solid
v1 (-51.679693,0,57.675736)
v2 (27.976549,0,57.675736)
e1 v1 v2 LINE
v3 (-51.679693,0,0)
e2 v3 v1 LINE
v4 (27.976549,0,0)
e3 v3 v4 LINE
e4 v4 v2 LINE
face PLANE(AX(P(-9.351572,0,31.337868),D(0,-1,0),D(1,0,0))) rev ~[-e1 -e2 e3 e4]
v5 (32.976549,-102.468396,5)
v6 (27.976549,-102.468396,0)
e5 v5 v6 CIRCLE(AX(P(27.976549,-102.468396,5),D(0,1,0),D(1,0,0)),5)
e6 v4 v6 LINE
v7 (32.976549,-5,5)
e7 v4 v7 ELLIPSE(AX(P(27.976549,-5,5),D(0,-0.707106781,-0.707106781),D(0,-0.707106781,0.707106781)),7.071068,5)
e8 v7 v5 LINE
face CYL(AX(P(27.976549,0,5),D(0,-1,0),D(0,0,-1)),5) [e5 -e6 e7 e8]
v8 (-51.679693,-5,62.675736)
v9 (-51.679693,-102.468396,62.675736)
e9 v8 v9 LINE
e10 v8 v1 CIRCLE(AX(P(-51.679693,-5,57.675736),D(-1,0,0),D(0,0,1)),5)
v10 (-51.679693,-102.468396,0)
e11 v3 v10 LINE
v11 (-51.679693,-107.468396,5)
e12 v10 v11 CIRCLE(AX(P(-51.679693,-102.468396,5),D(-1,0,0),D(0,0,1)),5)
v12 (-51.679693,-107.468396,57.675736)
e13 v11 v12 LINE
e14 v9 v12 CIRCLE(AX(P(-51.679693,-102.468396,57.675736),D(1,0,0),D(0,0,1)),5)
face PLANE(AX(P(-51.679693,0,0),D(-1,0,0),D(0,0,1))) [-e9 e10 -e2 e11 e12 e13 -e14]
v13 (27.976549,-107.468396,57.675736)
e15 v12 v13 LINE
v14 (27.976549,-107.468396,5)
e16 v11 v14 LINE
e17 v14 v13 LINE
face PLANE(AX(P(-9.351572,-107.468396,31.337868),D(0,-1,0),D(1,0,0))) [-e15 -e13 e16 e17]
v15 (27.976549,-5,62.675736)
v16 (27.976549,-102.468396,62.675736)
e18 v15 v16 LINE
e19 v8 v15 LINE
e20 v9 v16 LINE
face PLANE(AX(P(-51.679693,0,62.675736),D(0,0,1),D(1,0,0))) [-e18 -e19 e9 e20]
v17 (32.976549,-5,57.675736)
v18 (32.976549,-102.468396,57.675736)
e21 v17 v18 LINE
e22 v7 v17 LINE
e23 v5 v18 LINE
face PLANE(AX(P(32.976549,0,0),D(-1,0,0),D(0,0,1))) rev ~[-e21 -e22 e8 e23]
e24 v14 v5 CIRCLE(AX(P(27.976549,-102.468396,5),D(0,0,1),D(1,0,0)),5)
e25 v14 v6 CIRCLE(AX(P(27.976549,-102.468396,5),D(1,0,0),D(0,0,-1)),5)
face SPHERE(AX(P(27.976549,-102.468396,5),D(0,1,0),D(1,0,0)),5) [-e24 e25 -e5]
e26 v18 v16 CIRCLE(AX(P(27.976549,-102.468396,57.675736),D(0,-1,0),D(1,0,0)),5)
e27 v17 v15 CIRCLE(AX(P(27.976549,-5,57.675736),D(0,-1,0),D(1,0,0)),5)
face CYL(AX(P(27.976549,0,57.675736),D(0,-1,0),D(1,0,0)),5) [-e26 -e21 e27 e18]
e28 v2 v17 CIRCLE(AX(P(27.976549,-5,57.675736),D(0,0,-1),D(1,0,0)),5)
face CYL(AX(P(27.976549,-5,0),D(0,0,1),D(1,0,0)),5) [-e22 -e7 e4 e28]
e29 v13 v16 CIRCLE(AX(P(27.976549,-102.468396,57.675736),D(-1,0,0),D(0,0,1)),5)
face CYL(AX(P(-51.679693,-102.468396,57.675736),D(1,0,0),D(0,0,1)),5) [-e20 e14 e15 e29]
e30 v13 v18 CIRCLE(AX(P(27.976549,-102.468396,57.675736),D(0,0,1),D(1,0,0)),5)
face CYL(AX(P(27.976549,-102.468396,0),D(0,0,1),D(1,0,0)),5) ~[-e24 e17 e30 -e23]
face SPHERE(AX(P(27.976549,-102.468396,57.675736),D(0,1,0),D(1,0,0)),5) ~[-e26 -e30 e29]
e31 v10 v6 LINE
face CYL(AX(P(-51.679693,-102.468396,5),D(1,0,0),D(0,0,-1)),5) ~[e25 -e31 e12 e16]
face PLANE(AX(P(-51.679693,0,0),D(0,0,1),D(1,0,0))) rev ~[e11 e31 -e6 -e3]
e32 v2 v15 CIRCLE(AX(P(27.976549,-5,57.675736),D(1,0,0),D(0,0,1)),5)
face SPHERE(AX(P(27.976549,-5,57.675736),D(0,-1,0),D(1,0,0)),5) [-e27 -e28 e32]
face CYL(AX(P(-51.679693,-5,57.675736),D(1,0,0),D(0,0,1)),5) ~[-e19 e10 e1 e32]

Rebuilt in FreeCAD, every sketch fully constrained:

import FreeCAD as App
import Part
import Sketcher
from FreeCAD import Vector
Q = App.Units.Quantity


def edges_at(feature, points):
    """Names of the edges that pass closest to the given points."""
    edges = feature.Shape.Edges
    near = lambda p: min(range(len(edges)), key=lambda i: edges[i].distToShape(Part.Vertex(*p))[0])
    return sorted({f"Edge{near(p) + 1}" for p in points})


def add_polygon(sketch, points):
    """Adds a closed chain of lines whose ends are joined by coincident constraints."""
    first, n = sketch.GeometryCount, len(points)
    for a, b in zip(points, points[1:] + points[:1]):
        sketch.addGeometry(Part.LineSegment(App.Vector(*a, 0), App.Vector(*b, 0)), False)
    for i in range(n):
        sketch.addConstraint(Sketcher.Constraint("Coincident", first + i, 2, first + (i + 1) % n, 1))

doc = App.newDocument("Part")
params = doc.addObject("Spreadsheet::Sheet", "Params")
for row, (alias, value) in enumerate([
    ("pad1_length", "107.468396 mm"),
    ("fillet_radius", "5 mm"),
], start=1):
    params.set(f"A{row}", alias)
    params.set(f"B{row}", "=" + value)
    params.setAlias(f"B{row}", alias)

body = doc.addObject("PartDesign::Body", "Body")

sketch1 = body.newObject("Sketcher::SketchObject", "Sketch")
sketch1.AttachmentSupport = (doc.getObject("XZ_Plane"), [""])
sketch1.MapMode = "FlatFace"
add_polygon(sketch1, [(-52, 63), (-52, 0), (33, 0), (33, 63)])
sketch1.addConstraint([
    Sketcher.Constraint("Vertical", 0),
    Sketcher.Constraint("Horizontal", 1),
    Sketcher.Constraint("Vertical", 2),
    Sketcher.Constraint("Horizontal", 3),
    Sketcher.Constraint("PointOnObject", 0, 2, -1),
    Sketcher.Constraint("DistanceX", 1, 1, 1, 2, Q("84.656242 mm")),
    Sketcher.Constraint("DistanceY", 0, 2, 0, 1, Q("62.675737 mm")),
    Sketcher.Constraint("DistanceX", -1, 1, 1, 2, Q("32.976549 mm")),
])
pad1 = body.newObject("PartDesign::Pad", "Pad")
pad1.Profile = sketch1
pad1.setExpression("Length", "Params.pad1_length")
doc.recompute()

fillet = body.newObject("PartDesign::Fillet", "Fillet")
fillet.Base = (pad1, edges_at(pad1, [
    (32.977, -53.734, 0),
    (32.977, -53.734, 62.676),
    (32.977, 0, 31.338),
    (32.977, -107.468, 31.338),
    (-9.352, -107.468, 62.676),
    (-9.352, 0, 62.676),
    (-9.352, -107.468, 0),
]))
fillet.setExpression("Radius", "Params.fillet_radius")

doc.recompute()
